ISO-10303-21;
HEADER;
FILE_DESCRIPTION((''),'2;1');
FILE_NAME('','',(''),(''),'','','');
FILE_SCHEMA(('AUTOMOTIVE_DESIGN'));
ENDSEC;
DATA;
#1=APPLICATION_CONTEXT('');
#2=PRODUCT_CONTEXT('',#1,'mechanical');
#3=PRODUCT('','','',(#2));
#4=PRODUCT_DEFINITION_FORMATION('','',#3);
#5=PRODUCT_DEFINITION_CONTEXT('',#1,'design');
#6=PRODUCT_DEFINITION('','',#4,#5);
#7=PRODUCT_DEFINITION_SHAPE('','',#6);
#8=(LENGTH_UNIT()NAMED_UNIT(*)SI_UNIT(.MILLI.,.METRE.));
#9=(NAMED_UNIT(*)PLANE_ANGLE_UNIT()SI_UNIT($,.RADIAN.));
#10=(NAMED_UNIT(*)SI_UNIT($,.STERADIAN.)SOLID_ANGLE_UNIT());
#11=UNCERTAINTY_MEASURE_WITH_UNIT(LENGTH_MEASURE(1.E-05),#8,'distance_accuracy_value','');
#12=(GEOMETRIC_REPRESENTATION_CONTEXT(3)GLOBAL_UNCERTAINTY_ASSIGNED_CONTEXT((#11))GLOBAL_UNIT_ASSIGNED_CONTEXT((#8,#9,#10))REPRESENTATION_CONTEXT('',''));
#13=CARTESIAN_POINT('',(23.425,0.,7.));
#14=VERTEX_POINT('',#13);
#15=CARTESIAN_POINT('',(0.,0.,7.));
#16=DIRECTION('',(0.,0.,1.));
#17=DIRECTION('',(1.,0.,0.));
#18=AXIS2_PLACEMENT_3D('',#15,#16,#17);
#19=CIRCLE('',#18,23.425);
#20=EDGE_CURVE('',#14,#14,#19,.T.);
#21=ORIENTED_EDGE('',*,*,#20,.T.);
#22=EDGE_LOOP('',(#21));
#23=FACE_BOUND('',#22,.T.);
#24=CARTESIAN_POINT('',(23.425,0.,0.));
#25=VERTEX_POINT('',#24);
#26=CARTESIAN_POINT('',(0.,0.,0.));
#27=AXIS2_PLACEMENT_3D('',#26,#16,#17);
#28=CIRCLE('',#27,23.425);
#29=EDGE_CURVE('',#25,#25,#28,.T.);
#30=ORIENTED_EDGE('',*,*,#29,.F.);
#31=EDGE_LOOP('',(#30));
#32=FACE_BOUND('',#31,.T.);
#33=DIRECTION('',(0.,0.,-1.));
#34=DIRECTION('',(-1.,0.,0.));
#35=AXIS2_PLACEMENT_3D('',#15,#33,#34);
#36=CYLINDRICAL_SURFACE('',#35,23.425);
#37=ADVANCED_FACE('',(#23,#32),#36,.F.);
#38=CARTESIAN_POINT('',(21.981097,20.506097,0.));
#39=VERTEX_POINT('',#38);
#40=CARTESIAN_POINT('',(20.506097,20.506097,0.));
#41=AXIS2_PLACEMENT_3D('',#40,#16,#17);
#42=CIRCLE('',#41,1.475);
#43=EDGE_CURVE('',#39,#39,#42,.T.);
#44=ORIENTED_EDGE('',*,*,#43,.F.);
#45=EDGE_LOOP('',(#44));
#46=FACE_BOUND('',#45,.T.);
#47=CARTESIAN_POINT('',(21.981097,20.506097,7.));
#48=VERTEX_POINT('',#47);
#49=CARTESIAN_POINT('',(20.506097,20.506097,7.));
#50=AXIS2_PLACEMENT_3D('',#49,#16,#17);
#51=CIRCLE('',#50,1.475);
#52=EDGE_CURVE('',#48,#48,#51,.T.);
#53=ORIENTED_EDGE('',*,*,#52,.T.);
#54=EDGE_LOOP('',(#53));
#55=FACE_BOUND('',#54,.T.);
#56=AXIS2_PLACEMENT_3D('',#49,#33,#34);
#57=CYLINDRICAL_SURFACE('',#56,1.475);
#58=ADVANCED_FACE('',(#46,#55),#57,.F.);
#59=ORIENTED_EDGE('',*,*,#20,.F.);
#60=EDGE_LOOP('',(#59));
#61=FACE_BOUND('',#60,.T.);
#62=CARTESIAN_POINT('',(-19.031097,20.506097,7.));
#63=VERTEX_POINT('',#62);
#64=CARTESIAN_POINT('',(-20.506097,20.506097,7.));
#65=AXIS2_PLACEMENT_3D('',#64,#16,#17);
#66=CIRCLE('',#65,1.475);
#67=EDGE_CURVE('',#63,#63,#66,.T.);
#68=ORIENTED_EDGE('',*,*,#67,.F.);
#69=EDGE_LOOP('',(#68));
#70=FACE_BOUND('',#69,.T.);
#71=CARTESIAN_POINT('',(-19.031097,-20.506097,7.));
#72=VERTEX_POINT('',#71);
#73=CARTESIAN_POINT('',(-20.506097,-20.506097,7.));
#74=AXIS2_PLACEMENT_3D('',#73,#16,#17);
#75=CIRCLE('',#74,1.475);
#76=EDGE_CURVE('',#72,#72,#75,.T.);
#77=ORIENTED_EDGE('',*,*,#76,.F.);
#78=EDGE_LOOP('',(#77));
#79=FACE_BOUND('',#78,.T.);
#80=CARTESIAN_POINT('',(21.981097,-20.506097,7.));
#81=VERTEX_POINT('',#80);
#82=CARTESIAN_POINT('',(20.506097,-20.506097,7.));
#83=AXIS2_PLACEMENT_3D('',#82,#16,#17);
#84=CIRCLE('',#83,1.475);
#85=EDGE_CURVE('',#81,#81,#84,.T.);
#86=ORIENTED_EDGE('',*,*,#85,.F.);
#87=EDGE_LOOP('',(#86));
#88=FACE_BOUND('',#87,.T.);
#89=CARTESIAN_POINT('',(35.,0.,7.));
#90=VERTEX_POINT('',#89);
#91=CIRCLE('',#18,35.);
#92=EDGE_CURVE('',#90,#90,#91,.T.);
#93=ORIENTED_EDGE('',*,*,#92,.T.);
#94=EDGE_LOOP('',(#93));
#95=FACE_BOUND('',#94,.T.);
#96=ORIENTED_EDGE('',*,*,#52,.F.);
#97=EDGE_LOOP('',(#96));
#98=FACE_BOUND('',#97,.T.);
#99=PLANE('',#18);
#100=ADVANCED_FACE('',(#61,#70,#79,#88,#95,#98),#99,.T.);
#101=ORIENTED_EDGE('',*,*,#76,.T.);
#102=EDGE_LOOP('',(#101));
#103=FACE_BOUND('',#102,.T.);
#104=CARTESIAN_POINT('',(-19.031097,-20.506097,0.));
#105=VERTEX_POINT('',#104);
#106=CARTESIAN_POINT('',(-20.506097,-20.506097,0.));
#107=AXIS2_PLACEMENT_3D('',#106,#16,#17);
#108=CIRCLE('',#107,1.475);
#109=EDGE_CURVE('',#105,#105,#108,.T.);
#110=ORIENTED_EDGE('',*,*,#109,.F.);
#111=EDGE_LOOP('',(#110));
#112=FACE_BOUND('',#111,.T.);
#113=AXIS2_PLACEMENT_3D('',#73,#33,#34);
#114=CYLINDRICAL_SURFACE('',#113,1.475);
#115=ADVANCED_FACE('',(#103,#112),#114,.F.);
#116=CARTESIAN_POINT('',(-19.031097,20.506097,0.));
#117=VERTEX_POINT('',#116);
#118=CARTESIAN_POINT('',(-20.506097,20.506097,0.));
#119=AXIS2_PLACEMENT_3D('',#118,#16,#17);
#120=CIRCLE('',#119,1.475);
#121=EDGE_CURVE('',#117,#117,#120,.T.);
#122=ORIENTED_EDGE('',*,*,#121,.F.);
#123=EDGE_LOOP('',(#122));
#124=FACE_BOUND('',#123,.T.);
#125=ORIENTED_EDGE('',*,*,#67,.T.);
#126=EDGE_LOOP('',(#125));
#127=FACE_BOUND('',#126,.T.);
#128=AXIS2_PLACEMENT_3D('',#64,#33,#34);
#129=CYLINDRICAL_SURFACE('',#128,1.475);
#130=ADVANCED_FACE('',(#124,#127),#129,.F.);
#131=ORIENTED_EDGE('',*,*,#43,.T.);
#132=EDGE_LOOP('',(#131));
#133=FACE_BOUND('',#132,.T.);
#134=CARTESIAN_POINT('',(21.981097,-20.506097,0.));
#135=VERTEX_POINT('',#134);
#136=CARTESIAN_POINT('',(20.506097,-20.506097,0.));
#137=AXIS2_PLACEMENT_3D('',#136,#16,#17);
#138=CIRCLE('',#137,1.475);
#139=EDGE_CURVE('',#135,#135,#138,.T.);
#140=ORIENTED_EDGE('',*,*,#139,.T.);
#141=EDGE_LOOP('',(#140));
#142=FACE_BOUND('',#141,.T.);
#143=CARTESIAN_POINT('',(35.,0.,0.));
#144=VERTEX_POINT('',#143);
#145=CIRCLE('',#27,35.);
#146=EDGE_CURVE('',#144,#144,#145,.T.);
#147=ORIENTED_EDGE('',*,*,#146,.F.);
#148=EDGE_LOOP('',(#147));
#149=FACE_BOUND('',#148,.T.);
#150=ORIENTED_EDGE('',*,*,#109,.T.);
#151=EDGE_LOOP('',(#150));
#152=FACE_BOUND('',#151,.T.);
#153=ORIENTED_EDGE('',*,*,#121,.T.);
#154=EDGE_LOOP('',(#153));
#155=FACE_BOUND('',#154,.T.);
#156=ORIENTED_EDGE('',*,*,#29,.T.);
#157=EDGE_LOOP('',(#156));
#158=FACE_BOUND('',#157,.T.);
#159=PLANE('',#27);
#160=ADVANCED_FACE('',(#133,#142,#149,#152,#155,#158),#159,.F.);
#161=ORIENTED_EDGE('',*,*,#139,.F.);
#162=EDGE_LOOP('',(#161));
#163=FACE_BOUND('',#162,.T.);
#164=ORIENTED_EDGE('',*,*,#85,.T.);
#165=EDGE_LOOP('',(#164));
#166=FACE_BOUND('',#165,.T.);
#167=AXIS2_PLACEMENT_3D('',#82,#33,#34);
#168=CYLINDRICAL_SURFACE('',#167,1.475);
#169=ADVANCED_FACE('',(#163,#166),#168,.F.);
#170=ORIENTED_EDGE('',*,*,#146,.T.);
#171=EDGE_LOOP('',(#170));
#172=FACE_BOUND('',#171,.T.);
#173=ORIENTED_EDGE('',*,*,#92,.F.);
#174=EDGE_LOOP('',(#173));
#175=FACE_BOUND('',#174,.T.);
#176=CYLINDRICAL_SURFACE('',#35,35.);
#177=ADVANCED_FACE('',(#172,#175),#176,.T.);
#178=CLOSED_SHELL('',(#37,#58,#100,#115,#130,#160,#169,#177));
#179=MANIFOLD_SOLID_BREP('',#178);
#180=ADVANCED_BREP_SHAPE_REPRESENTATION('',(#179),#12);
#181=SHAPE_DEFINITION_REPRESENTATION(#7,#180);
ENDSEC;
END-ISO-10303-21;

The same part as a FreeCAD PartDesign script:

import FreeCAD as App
import Part
import Sketcher
from FreeCAD import Vector
Q = App.Units.Quantity

doc = App.newDocument("Part")
body = doc.addObject("PartDesign::Body", "Body")

# Sketch on XY plane
sketch1 = body.newObject("Sketcher::SketchObject", "Sketch")
sketch1.AttachmentSupport = (doc.getObject("XY_Plane"), [""])
sketch1.MapMode = "FlatFace"
sketch1.addGeometry([
    Part.Circle(Vector(0, 0, 0), Vector(0, 0, 1), 35),  # 0
    Part.Circle(Vector(-20.5, -20.5, 0), Vector(0, 0, 1), 1.5),  # 1
    Part.Circle(Vector(20.5, -20.5, 0), Vector(0, 0, 1), 1.5),  # 2
    Part.Circle(Vector(-20.5, 20.5, 0), Vector(0, 0, 1), 1.5),  # 3
    Part.Circle(Vector(0, 0, 0), Vector(0, 0, 1), 23.4),  # 4
    Part.Circle(Vector(20.5, 20.5, 0), Vector(0, 0, 1), 1.5),  # 5
], False)
sketch1.addConstraint([
    Sketcher.Constraint("Coincident", 0, 3, -1, 1),
    Sketcher.Constraint("Coincident", 4, 3, -1, 1),
    Sketcher.Constraint("Equal", 1, 2),
    Sketcher.Constraint("Equal", 2, 3),
    Sketcher.Constraint("Equal", 3, 5),
    Sketcher.Constraint("Symmetric", 2, 3, 3, 3, -1, 1),
    Sketcher.Constraint("Symmetric", 1, 3, 5, 3, -1, 1),
    Sketcher.Constraint("Symmetric", 1, 3, 2, 3, -2),
    Sketcher.Constraint("Diameter", 0, Q("70 mm")),
    Sketcher.Constraint("Diameter", 1, Q("2.95 mm")),
    Sketcher.Constraint("Diameter", 4, Q("46.85 mm")),
    Sketcher.Constraint("DistanceX", 1, 3, -1, 1, Q("20.506097 mm")),
    Sketcher.Constraint("DistanceY", 1, 3, -1, 1, Q("20.506097 mm")),
])
pad1 = body.newObject("PartDesign::Pad", "Pad")
pad1.Profile = sketch1
pad1.Length = 7

doc.recompute()
